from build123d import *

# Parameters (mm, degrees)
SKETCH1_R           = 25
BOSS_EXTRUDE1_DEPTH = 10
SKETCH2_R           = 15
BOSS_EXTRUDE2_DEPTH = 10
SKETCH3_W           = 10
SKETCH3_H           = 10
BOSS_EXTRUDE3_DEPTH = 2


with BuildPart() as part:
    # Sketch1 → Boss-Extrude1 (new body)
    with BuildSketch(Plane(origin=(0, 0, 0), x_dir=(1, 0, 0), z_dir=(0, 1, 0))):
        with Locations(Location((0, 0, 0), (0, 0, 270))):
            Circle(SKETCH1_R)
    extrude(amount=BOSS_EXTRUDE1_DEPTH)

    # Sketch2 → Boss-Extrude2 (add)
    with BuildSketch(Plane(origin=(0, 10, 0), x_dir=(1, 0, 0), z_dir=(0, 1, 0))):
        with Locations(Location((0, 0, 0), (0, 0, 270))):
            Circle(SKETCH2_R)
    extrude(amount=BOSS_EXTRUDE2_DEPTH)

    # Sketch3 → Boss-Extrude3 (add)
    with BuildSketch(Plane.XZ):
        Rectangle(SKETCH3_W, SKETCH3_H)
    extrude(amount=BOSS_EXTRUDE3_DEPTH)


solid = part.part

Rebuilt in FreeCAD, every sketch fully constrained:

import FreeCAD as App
import Part
import Sketcher
from FreeCAD import Vector
Q = App.Units.Quantity

doc = App.newDocument("Part")
body = doc.addObject("PartDesign::Body", "Body")

# Sketch on XZ plane
sketch1 = body.newObject("Sketcher::SketchObject", "Sketch")
sketch1.AttachmentSupport = (doc.getObject("XZ_Plane"), [""])
sketch1.MapMode = "FlatFace"
sketch1.addGeometry(Part.Circle(Vector(0, 0, 0), Vector(0, 0, 1), 25), False)
sketch1.addConstraint(Sketcher.Constraint("Coincident", 0, 3, -1, 1))
sketch1.addConstraint(Sketcher.Constraint("Diameter", 0, Q("50 mm")))
pad1 = body.newObject("PartDesign::Pad", "Pad")
pad1.Profile = sketch1
pad1.Length = 10
pad1.Reversed = True

# Sketch on XZ plane
sketch2 = body.newObject("Sketcher::SketchObject", "Sketch001")
sketch2.AttachmentSupport = (doc.getObject("XZ_Plane"), [""])
sketch2.MapMode = "FlatFace"
sketch2.AttachmentOffset = App.Placement(Vector(0, 0, -10), App.Rotation())
sketch2.addGeometry(Part.Circle(Vector(0, 0, 0), Vector(0, 0, 1), 15), False)
sketch2.addConstraint(Sketcher.Constraint("Coincident", 0, 3, -1, 1))
sketch2.addConstraint(Sketcher.Constraint("Diameter", 0, Q("30 mm")))
pad2 = body.newObject("PartDesign::Pad", "Pad001")
pad2.Profile = sketch2
pad2.Length = 10
pad2.Reversed = True

# Sketch on XZ plane
sketch3 = body.newObject("Sketcher::SketchObject", "Sketch002")
sketch3.AttachmentSupport = (doc.getObject("XZ_Plane"), [""])
sketch3.MapMode = "FlatFace"
sketch3.addGeometry(Part.LineSegment(Vector(-5, 5, 0), Vector(-5, -5, 0)), False)
sketch3.addGeometry(Part.LineSegment(Vector(-5, -5, 0), Vector(5, -5, 0)), False)
sketch3.addGeometry(Part.LineSegment(Vector(5, -5, 0), Vector(5, 5, 0)), False)
sketch3.addGeometry(Part.LineSegment(Vector(5, 5, 0), Vector(-5, 5, 0)), False)
sketch3.addConstraint(Sketcher.Constraint("Coincident", 0, 2, 1, 1))
sketch3.addConstraint(Sketcher.Constraint("Coincident", 1, 2, 2, 1))
sketch3.addConstraint(Sketcher.Constraint("Coincident", 2, 2, 3, 1))
sketch3.addConstraint(Sketcher.Constraint("Coincident", 3, 2, 0, 1))
sketch3.addConstraint(Sketcher.Constraint("Vertical", 0))
sketch3.addConstraint(Sketcher.Constraint("Horizontal", 1))
sketch3.addConstraint(Sketcher.Constraint("Vertical", 2))
sketch3.addConstraint(Sketcher.Constraint("Horizontal", 3))
sketch3.addConstraint(Sketcher.Constraint("Symmetric", 0, 2, 2, 2, -1, 1))
sketch3.addConstraint(Sketcher.Constraint("Equal", 3, 0))
sketch3.addConstraint(Sketcher.Constraint("DistanceX", 1, 1, 1, 2, Q("10 mm")))
pad3 = body.newObject("PartDesign::Pad", "Pad002")
pad3.Profile = sketch3
pad3.Length = 2

doc.recompute()
